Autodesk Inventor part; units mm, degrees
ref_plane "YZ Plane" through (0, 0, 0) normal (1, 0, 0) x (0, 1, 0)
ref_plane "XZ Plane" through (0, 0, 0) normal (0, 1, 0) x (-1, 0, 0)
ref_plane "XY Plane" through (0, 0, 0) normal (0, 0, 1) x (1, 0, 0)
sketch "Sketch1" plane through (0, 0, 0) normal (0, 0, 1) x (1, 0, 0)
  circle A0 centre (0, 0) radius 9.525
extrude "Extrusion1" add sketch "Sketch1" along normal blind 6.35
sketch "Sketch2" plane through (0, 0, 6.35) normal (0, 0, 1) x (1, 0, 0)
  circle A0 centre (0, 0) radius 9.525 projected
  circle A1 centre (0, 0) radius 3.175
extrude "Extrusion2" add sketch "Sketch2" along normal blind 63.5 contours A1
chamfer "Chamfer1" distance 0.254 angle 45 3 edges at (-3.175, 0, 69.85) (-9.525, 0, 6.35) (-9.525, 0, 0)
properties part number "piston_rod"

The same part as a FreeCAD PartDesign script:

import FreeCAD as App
import Part
import Sketcher

V = App.Vector
Q = App.Units.Quantity


def edges_at(feature, points):
    """Names of the edges that pass closest to the given points."""
    edges = feature.Shape.Edges
    near = lambda p: min(range(len(edges)), key=lambda i: edges[i].distToShape(Part.Vertex(*p))[0])
    return sorted({f"Edge{near(p) + 1}" for p in points})

doc = App.newDocument("Part")
body = doc.addObject("PartDesign::Body", "Body")

# Sketch on XY plane
sketch1 = body.newObject("Sketcher::SketchObject", "Sketch")
sketch1.AttachmentSupport = (doc.getObject("XY_Plane"), [""])
sketch1.MapMode = "FlatFace"
sketch1.addGeometry(Part.Circle(V(0, 0, 0), V(0, 0, 1), 10), False)
sketch1.addConstraint(Sketcher.Constraint("Coincident", 0, 3, -1, 1))
sketch1.addConstraint(Sketcher.Constraint("Diameter", 0, Q("0.75 in")))
pad1 = body.newObject("PartDesign::Pad", "Pad")
pad1.Profile = sketch1
pad1.Length = Q("0.25 in")

# Sketch on XY plane
sketch2 = body.newObject("Sketcher::SketchObject", "Sketch001")
sketch2.AttachmentSupport = (doc.getObject("XY_Plane"), [""])
sketch2.MapMode = "FlatFace"
sketch2.AttachmentOffset = App.Placement(V(0, 0, 0.25 * 25.4), App.Rotation())
sketch2.addGeometry(Part.Circle(V(0, 0, 0), V(0, 0, 1), 3.2), False)
sketch2.addConstraint(Sketcher.Constraint("Coincident", 0, 3, -1, 1))
sketch2.addConstraint(Sketcher.Constraint("Diameter", 0, Q("0.25 in")))
pad2 = body.newObject("PartDesign::Pad", "Pad001")
pad2.Profile = sketch2
pad2.Length = Q("2.5 in")
doc.recompute()

chamfer = body.newObject("PartDesign::Chamfer", "Chamfer")
chamfer.Base = (pad2, edges_at(pad2, [(-3.175, 0, 69.85), (-9.525, 0, 6.35), (-9.525, 0, 0)]))
chamfer.Size = Q("0.01 in")

doc.recompute()
